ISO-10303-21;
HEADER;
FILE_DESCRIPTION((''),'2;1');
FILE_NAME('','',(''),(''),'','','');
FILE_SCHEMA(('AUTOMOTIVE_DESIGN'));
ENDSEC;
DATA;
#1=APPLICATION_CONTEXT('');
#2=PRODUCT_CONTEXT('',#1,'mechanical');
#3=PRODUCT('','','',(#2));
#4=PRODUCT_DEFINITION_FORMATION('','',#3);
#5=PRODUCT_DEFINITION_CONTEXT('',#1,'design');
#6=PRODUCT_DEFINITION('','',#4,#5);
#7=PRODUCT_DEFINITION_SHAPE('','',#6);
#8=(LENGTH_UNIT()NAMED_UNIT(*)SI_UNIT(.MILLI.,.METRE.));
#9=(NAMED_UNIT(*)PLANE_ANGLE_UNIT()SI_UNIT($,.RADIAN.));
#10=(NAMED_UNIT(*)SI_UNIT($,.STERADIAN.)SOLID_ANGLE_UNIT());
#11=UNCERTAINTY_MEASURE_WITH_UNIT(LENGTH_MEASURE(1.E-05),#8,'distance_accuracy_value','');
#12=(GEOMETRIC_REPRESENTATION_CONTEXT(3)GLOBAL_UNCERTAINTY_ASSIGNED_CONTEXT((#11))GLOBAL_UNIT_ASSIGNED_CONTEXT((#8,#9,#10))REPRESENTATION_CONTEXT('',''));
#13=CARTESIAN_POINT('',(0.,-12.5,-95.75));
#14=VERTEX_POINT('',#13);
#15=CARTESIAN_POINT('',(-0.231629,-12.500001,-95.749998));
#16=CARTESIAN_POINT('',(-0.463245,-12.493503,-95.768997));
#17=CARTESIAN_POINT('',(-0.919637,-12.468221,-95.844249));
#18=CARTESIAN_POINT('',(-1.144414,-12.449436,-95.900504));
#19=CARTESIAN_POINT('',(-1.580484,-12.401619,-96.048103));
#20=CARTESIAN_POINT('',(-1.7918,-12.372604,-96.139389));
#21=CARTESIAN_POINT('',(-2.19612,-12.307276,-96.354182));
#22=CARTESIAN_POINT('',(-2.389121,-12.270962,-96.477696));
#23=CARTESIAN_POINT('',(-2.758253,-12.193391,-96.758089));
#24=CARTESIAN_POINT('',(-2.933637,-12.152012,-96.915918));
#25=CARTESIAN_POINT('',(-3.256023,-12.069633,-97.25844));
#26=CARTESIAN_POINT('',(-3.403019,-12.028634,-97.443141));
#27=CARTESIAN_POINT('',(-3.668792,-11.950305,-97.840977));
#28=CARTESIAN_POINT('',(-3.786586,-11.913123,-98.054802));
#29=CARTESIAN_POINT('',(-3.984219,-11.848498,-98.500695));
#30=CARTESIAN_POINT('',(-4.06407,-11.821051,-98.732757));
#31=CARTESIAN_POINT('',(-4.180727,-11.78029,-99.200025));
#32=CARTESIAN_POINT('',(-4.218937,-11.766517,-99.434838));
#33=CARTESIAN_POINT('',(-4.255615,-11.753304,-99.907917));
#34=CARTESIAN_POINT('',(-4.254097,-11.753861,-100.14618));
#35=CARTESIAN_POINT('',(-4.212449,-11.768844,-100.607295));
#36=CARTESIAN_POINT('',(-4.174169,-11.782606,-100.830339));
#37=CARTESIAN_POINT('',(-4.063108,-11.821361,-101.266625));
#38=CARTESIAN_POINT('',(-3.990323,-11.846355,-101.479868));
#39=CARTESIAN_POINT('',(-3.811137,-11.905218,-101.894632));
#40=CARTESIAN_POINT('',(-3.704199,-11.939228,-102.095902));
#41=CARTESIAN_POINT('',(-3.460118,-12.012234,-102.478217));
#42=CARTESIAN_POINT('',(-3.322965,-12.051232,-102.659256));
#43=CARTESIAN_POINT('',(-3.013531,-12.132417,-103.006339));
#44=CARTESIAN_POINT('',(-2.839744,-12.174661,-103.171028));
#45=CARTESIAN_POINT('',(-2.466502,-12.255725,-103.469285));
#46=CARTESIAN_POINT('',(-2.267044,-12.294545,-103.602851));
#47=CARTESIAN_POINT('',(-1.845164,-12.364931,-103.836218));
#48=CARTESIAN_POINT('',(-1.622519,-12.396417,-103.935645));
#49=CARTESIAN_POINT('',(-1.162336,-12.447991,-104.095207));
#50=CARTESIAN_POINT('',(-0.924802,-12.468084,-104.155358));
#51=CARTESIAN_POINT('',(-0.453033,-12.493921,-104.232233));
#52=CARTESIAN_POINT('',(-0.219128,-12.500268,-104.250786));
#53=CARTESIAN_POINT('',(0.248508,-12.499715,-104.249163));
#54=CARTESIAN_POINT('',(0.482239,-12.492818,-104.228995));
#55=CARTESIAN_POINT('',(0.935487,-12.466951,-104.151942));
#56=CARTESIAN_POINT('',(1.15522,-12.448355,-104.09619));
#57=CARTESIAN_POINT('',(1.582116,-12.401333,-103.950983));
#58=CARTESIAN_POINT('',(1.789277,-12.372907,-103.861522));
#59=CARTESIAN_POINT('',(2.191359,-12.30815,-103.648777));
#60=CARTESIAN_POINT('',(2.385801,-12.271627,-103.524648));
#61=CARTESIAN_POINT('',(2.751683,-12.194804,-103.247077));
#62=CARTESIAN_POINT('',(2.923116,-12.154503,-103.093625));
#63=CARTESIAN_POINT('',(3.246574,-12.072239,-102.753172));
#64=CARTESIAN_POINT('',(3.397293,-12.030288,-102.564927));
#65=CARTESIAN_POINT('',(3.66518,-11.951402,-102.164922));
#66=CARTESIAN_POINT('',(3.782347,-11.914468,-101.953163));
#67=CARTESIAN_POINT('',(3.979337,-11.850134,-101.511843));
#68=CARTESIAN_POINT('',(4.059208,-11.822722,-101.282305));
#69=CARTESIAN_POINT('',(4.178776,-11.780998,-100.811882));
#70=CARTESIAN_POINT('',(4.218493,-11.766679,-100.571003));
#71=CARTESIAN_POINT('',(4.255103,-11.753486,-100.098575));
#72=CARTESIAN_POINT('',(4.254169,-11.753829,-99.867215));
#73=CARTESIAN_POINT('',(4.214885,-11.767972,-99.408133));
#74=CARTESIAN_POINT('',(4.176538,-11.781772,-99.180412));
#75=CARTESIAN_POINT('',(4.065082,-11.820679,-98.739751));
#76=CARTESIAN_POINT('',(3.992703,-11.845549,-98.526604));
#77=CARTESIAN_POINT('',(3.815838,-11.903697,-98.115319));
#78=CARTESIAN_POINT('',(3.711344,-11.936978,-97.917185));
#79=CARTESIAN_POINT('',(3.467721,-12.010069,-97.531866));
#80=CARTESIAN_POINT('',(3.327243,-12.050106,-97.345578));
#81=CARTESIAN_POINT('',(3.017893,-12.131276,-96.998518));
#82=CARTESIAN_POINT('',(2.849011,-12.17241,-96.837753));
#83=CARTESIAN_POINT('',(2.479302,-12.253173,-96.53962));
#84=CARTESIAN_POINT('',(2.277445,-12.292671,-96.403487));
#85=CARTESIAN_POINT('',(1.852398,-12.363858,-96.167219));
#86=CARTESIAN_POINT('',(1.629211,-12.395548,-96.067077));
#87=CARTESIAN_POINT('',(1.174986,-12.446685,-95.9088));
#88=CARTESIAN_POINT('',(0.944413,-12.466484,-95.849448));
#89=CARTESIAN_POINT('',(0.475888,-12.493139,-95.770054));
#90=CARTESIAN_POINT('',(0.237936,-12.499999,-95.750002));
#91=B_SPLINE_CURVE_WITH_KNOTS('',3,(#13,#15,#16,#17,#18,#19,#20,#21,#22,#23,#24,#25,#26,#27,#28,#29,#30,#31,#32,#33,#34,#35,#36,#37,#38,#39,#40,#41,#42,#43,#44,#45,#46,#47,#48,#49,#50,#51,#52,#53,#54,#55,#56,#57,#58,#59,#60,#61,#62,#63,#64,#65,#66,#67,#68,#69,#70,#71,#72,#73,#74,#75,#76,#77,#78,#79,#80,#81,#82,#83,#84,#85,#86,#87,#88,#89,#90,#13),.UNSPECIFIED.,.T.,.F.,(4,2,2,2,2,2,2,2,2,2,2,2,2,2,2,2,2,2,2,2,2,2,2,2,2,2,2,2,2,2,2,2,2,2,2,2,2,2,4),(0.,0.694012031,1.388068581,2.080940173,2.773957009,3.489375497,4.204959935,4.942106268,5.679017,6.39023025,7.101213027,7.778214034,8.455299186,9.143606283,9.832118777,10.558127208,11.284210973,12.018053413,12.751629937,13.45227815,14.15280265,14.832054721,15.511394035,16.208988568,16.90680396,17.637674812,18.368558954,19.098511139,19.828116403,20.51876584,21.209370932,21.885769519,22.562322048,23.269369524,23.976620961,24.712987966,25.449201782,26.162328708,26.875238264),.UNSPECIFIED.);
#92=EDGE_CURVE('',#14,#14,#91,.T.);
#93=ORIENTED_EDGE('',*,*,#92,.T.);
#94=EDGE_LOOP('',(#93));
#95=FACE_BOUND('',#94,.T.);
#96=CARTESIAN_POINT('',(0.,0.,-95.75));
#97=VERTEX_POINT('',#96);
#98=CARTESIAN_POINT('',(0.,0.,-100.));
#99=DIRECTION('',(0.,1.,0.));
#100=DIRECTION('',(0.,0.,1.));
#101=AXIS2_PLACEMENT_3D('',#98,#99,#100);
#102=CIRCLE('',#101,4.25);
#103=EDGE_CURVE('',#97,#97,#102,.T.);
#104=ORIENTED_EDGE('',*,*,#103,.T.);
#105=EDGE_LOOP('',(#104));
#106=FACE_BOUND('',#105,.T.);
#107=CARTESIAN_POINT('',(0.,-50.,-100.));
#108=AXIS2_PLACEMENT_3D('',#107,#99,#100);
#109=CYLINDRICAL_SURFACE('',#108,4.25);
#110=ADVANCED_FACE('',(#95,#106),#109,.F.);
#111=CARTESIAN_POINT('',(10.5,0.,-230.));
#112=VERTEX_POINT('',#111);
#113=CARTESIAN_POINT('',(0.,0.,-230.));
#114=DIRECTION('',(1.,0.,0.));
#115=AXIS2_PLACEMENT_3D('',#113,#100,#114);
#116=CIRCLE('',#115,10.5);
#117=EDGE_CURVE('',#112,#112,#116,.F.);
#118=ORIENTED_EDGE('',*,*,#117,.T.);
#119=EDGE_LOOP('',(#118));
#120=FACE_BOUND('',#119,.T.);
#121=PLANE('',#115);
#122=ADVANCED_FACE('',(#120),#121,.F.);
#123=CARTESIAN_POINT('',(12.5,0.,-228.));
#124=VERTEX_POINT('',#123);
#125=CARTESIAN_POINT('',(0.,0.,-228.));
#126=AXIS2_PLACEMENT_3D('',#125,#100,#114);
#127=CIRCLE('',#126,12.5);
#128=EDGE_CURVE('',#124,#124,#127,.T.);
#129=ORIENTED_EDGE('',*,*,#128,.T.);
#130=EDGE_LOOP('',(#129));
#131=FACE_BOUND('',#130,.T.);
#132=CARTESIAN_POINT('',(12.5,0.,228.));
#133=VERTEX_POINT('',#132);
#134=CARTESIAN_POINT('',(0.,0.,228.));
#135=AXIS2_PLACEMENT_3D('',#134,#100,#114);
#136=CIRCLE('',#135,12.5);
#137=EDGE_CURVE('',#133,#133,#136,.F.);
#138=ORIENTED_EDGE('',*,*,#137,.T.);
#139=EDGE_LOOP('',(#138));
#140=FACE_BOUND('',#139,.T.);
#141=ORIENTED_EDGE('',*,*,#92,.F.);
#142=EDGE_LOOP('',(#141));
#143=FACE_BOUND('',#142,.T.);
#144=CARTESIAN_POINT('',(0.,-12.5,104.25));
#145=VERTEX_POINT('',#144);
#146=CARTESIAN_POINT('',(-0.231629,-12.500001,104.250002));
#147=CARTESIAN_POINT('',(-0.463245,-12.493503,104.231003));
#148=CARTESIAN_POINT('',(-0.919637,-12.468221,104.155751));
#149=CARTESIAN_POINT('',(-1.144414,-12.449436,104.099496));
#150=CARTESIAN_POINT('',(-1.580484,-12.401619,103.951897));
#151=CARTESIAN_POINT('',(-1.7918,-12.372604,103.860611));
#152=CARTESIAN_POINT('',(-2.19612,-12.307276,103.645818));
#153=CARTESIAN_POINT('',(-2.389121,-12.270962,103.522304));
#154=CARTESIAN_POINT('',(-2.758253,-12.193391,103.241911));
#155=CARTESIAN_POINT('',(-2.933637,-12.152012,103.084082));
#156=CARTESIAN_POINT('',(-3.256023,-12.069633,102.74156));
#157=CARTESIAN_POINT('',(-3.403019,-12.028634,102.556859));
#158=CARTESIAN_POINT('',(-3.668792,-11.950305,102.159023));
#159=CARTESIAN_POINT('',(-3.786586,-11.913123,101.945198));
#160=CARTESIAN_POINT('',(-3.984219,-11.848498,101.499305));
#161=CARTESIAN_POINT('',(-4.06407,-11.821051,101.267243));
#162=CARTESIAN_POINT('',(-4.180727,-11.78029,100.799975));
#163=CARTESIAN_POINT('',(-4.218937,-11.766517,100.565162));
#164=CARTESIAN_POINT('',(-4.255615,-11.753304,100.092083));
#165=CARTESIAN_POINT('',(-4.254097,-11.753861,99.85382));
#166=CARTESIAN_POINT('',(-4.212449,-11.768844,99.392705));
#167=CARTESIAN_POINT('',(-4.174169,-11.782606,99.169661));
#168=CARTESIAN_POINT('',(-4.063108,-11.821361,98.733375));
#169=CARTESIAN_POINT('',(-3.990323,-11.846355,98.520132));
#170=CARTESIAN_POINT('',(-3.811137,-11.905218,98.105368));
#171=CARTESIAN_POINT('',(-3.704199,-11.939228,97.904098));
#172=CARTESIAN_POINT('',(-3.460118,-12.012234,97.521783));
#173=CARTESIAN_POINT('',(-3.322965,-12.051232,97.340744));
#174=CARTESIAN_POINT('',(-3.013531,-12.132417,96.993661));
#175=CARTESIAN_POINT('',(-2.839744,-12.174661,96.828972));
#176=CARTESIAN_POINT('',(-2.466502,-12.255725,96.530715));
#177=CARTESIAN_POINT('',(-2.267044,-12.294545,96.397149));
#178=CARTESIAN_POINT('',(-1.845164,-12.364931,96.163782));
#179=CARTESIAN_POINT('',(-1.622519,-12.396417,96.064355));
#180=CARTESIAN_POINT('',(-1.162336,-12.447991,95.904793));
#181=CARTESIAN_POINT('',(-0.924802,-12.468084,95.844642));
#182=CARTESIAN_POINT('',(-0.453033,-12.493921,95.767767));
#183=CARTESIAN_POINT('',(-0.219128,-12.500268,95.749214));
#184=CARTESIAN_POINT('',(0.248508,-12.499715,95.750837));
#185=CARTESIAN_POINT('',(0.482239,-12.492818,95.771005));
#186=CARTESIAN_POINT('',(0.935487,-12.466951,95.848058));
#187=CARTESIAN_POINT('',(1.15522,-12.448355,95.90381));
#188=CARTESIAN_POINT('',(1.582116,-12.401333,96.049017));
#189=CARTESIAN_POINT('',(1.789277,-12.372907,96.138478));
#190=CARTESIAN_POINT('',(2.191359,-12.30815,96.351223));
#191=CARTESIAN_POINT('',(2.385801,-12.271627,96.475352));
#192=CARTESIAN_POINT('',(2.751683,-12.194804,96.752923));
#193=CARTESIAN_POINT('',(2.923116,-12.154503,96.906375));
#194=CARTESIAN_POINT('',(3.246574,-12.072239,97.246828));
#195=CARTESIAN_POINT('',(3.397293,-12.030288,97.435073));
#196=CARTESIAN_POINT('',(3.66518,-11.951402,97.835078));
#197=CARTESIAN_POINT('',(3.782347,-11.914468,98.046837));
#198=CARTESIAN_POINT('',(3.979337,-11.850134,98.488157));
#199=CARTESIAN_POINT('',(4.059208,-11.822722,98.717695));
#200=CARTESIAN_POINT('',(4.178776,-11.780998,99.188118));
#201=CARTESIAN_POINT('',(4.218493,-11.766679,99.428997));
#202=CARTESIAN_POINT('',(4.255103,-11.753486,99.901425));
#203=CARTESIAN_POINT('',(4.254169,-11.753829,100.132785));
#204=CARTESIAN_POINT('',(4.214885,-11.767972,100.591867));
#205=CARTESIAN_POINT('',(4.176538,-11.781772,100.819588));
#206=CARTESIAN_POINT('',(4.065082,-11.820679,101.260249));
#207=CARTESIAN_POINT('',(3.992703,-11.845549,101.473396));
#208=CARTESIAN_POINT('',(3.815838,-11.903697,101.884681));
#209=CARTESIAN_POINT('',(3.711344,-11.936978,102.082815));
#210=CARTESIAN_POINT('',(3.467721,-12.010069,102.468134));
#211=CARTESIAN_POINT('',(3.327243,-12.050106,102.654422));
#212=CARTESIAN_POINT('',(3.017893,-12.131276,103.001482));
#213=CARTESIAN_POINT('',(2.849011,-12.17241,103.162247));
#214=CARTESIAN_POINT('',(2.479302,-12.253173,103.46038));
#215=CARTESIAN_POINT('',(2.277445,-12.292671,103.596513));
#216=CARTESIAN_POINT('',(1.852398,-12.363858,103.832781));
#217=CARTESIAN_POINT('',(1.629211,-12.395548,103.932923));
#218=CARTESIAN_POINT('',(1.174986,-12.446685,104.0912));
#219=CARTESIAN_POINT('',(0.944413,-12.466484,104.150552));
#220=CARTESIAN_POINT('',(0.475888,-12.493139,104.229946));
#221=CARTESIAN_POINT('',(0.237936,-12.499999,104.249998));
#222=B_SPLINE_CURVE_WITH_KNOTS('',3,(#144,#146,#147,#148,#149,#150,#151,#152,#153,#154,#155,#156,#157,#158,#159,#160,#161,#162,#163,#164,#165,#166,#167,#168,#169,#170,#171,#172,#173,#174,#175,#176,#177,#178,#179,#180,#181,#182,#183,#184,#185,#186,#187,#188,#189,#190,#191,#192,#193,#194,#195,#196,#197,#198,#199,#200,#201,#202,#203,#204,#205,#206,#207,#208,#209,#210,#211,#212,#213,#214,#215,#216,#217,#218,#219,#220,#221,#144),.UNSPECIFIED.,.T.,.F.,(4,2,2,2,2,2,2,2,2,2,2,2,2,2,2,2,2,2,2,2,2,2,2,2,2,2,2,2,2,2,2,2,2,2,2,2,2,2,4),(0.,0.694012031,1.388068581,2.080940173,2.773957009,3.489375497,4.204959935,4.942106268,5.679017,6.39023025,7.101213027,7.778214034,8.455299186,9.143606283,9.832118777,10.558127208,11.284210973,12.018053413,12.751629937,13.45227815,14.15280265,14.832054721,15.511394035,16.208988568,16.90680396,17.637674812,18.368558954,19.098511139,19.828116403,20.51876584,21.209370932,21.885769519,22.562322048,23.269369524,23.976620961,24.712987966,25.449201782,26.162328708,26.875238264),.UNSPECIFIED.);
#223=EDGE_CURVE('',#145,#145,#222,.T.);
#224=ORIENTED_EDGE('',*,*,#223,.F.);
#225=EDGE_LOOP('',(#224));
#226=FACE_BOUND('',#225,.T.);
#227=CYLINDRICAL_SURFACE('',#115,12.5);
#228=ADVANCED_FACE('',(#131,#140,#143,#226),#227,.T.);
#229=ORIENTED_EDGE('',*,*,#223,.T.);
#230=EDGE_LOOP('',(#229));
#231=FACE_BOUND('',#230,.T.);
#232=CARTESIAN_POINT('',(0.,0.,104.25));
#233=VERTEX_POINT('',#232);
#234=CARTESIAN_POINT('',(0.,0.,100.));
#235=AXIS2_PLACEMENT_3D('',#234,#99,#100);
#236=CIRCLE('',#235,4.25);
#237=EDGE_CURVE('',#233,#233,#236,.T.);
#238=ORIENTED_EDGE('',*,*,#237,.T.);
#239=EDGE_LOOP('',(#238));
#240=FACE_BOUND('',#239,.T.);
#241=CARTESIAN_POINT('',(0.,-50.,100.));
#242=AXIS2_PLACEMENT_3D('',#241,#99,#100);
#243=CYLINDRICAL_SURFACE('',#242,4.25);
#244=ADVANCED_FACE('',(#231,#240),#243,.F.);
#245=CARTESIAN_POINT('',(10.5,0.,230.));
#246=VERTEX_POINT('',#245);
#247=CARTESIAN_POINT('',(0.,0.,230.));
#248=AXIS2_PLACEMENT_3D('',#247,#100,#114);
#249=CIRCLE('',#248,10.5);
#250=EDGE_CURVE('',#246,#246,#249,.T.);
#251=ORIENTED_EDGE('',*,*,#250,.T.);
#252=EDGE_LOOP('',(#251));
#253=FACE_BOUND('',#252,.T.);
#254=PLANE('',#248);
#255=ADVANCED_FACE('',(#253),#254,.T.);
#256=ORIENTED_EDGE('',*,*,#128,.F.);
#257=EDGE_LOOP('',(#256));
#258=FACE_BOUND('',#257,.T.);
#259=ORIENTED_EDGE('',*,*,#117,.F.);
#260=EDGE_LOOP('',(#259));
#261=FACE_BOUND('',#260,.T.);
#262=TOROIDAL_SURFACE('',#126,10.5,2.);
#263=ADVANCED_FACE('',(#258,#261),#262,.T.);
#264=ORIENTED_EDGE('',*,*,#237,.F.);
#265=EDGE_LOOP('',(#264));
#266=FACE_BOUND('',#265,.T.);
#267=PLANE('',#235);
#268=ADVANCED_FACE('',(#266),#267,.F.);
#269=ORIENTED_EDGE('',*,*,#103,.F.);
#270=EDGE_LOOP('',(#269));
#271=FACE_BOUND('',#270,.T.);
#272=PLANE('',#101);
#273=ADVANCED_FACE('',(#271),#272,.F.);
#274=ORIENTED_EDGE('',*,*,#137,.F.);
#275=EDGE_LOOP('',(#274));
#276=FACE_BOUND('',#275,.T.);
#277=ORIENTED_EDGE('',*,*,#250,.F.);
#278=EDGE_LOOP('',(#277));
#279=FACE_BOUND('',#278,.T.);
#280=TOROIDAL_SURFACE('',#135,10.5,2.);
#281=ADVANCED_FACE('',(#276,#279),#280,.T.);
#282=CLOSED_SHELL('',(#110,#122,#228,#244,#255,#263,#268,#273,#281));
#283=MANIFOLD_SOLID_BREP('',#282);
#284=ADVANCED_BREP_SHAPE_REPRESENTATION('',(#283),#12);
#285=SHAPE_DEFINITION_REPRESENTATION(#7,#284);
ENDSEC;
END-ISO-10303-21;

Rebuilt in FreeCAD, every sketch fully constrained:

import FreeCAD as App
import Part
import Sketcher
from FreeCAD import Vector


def edges_at(feature, points):
    """Names of the edges that pass closest to the given points."""
    edges = feature.Shape.Edges
    near = lambda p: min(range(len(edges)), key=lambda i: edges[i].distToShape(Part.Vertex(*p))[0])
    return sorted({f"Edge{near(p) + 1}" for p in points})

doc = App.newDocument("Part")
body = doc.addObject("PartDesign::Body", "Body")

sketch1 = body.newObject("Sketcher::SketchObject", "Sketch")
sketch1.AttachmentSupport = (doc.getObject("XY_Plane"), [""])
sketch1.MapMode = "FlatFace"
sketch1.addGeometry(Part.Circle(Vector(0, 0, 0), Vector(0, 0, 1), 12), False)
sketch1.addConstraint([
    Sketcher.Constraint("Coincident", 0, 3, -1, 1),
    Sketcher.Constraint("Diameter", 0, 25.0),
])
pad1 = body.newObject("PartDesign::Pad", "Pad")
pad1.Profile = sketch1
pad1.Type = "TwoLengths"
pad1.Length = 230
pad1.Length2 = 230

sketch2 = body.newObject("Sketcher::SketchObject", "Sketch001")
sketch2.AttachmentSupport = (doc.getObject("XZ_Plane"), [""])
sketch2.MapMode = "FlatFace"
sketch2.addGeometry([
    Part.Circle(Vector(0, -100, 0), Vector(0, 0, 1), 4.2),
    Part.Circle(Vector(0, 100, 0), Vector(0, 0, 1), 4.2),
], False)
sketch2.addConstraint([
    Sketcher.Constraint("Equal", 0, 1),
    Sketcher.Constraint("Symmetric", 0, 3, 1, 3, -1, 1),
    Sketcher.Constraint("PointOnObject", 0, 3, -2),
    Sketcher.Constraint("Diameter", 0, 8.5),
    Sketcher.Constraint("DistanceY", 0, 3, -1, 1, 100.0),
])
pocket1 = body.newObject("PartDesign::Pocket", "Pocket")
pocket1.Profile = sketch2
pocket1.Length = 50
pocket1.Reversed = True
doc.recompute()

fillet = body.newObject("PartDesign::Fillet", "Fillet")
fillet.Base = (pocket1, edges_at(pocket1, [(-12.5, 0, 230), (-12.5, 0, -230)]))
fillet.Radius = 2

doc.recompute()
